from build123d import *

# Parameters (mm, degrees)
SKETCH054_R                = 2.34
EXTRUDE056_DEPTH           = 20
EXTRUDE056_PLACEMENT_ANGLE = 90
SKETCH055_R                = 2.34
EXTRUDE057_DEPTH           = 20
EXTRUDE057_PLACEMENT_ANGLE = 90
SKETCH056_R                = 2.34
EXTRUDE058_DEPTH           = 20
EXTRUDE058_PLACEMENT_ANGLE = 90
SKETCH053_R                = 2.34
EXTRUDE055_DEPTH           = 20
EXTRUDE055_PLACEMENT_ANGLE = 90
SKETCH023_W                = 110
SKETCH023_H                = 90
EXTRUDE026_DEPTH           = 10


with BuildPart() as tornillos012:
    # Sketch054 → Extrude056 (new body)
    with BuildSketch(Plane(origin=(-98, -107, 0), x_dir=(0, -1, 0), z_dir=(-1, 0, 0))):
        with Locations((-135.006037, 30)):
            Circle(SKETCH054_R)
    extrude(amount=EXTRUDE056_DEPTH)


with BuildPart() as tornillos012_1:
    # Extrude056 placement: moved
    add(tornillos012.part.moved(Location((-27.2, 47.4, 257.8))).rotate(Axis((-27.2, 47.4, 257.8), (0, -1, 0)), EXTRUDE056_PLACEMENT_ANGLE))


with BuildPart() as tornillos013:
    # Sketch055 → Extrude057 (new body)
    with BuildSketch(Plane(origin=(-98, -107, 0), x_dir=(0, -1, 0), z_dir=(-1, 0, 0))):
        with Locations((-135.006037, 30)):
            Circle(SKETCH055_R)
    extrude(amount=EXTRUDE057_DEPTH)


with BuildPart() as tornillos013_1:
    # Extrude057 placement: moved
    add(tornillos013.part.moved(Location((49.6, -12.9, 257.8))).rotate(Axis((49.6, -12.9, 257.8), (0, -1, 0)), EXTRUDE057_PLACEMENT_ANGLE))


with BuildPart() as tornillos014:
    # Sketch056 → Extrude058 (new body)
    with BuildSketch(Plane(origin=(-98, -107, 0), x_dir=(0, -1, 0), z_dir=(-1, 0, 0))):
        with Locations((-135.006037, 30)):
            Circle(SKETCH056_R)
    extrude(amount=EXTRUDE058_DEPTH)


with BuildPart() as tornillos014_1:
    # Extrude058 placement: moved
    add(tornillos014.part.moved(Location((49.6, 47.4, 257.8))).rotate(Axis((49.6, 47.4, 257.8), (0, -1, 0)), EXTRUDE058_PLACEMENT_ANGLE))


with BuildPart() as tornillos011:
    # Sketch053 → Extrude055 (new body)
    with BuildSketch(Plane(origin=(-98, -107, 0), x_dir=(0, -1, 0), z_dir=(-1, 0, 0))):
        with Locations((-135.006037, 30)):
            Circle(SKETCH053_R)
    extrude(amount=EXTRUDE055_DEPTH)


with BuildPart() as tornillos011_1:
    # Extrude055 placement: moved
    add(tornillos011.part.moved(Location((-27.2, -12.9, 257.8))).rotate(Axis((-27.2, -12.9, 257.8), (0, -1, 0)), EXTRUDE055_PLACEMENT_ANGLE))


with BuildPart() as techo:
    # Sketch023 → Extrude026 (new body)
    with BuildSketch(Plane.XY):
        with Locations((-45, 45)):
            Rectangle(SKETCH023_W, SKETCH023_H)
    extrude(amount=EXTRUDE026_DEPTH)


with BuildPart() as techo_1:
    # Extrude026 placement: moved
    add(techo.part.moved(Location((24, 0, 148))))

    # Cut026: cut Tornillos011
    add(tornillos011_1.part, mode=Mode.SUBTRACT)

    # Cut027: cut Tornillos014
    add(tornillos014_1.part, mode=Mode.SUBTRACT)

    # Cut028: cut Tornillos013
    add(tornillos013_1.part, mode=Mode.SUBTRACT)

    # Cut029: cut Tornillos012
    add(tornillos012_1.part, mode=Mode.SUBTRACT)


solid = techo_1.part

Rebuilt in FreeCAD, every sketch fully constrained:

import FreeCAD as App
import Part
import Sketcher


def add_polygon(sketch, points):
    """Adds a closed chain of lines whose ends are joined by coincident constraints."""
    first, n = sketch.GeometryCount, len(points)
    for a, b in zip(points, points[1:] + points[:1]):
        sketch.addGeometry(Part.LineSegment(App.Vector(*a, 0), App.Vector(*b, 0)), False)
    for i in range(n):
        sketch.addConstraint(Sketcher.Constraint("Coincident", first + i, 2, first + (i + 1) % n, 1))

doc = App.newDocument("Part")
body = doc.addObject("PartDesign::Body", "Body")

# Sketch on YZ plane
sketch1 = body.newObject("Sketcher::SketchObject", "Sketch")
sketch1.AttachmentSupport = (doc.getObject("YZ_Plane"), [""])
sketch1.MapMode = "FlatFace"
sketch1.AttachmentOffset = App.Placement(App.Vector(0, 0, -98), App.Rotation())
sketch1.addGeometry(Part.Circle(App.Vector(28, 30, 0), App.Vector(0, 0, 1), 2.3), False)
sketch1.addConstraint([
    Sketcher.Constraint("Diameter", 0, 4.68),
    Sketcher.Constraint("DistanceY", -1, 1, 0, 3, 30.0),
    Sketcher.Constraint("DistanceX", -1, 1, 0, 3, 28.006037),
])
pad1 = body.newObject("PartDesign::Pad", "Pad")
pad1.Profile = sketch1
pad1.Length = 20
pad1.Reversed = True
body2 = doc.addObject("PartDesign::Body", "Body001")
doc.recompute()

body.Placement = App.Placement(App.Vector(-27.2, 47.4, 257.8), App.Rotation(App.Vector(0, -1, 0), 90))
boolean = body2.newObject("PartDesign::Boolean", "Boolean")
boolean.Type = "Fuse"
boolean.addObjects([body])
body3 = doc.addObject("PartDesign::Body", "Body002")

# Sketch on YZ plane
sketch2 = body3.newObject("Sketcher::SketchObject", "Sketch001")
sketch2.AttachmentSupport = (doc.getObject("YZ_Plane002"), [""])
sketch2.MapMode = "FlatFace"
sketch2.AttachmentOffset = App.Placement(App.Vector(0, 0, -98), App.Rotation())
sketch2.addGeometry(Part.Circle(App.Vector(28, 30, 0), App.Vector(0, 0, 1), 2.3), False)
sketch2.addConstraint([
    Sketcher.Constraint("Diameter", 0, 4.68),
    Sketcher.Constraint("DistanceY", -1, 1, 0, 3, 30.0),
    Sketcher.Constraint("DistanceX", -1, 1, 0, 3, 28.006037),
])
pad2 = body3.newObject("PartDesign::Pad", "Pad001")
pad2.Profile = sketch2
pad2.Length = 20
pad2.Reversed = True
body4 = doc.addObject("PartDesign::Body", "Body003")
doc.recompute()

body3.Placement = App.Placement(App.Vector(49.6, -12.9, 257.8), App.Rotation(App.Vector(0, -1, 0), 90))
boolean2 = body4.newObject("PartDesign::Boolean", "Boolean001")
boolean2.Type = "Fuse"
boolean2.addObjects([body3])
body5 = doc.addObject("PartDesign::Body", "Body004")

# Sketch on YZ plane
sketch3 = body5.newObject("Sketcher::SketchObject", "Sketch002")
sketch3.AttachmentSupport = (doc.getObject("YZ_Plane004"), [""])
sketch3.MapMode = "FlatFace"
sketch3.AttachmentOffset = App.Placement(App.Vector(0, 0, -98), App.Rotation())
sketch3.addGeometry(Part.Circle(App.Vector(28, 30, 0), App.Vector(0, 0, 1), 2.3), False)
sketch3.addConstraint([
    Sketcher.Constraint("Diameter", 0, 4.68),
    Sketcher.Constraint("DistanceY", -1, 1, 0, 3, 30.0),
    Sketcher.Constraint("DistanceX", -1, 1, 0, 3, 28.006037),
])
pad3 = body5.newObject("PartDesign::Pad", "Pad002")
pad3.Profile = sketch3
pad3.Length = 20
pad3.Reversed = True
body6 = doc.addObject("PartDesign::Body", "Body005")
doc.recompute()

body5.Placement = App.Placement(App.Vector(49.6, 47.4, 257.8), App.Rotation(App.Vector(0, -1, 0), 90))
boolean3 = body6.newObject("PartDesign::Boolean", "Boolean002")
boolean3.Type = "Fuse"
boolean3.addObjects([body5])
body7 = doc.addObject("PartDesign::Body", "Body006")

# Sketch on YZ plane
sketch4 = body7.newObject("Sketcher::SketchObject", "Sketch003")
sketch4.AttachmentSupport = (doc.getObject("YZ_Plane006"), [""])
sketch4.MapMode = "FlatFace"
sketch4.AttachmentOffset = App.Placement(App.Vector(0, 0, -98), App.Rotation())
sketch4.addGeometry(Part.Circle(App.Vector(28, 30, 0), App.Vector(0, 0, 1), 2.3), False)
sketch4.addConstraint([
    Sketcher.Constraint("Diameter", 0, 4.68),
    Sketcher.Constraint("DistanceY", -1, 1, 0, 3, 30.0),
    Sketcher.Constraint("DistanceX", -1, 1, 0, 3, 28.006037),
])
pad4 = body7.newObject("PartDesign::Pad", "Pad003")
pad4.Profile = sketch4
pad4.Length = 20
pad4.Reversed = True
body8 = doc.addObject("PartDesign::Body", "Body007")
doc.recompute()

body7.Placement = App.Placement(App.Vector(-27.2, -12.9, 257.8), App.Rotation(App.Vector(0, -1, 0), 90))
boolean4 = body8.newObject("PartDesign::Boolean", "Boolean003")
boolean4.Type = "Fuse"
boolean4.addObjects([body7])
body9 = doc.addObject("PartDesign::Body", "Body008")

# Sketch on XY plane
sketch5 = body9.newObject("Sketcher::SketchObject", "Sketch004")
sketch5.AttachmentSupport = (doc.getObject("XY_Plane008"), [""])
sketch5.MapMode = "FlatFace"
add_polygon(sketch5, [(-100, 90), (-100, 0), (10, 0), (10, 90)])  # lines 0-3
sketch5.addConstraint([
    Sketcher.Constraint("Vertical", 0),
    Sketcher.Constraint("Horizontal", 1),
    Sketcher.Constraint("Vertical", 2),
    Sketcher.Constraint("Horizontal", 3),
    Sketcher.Constraint("PointOnObject", 0, 2, -1),
    Sketcher.Constraint("DistanceX", 1, 1, 1, 2, 110.0),
    Sketcher.Constraint("DistanceY", 0, 2, 0, 1, 90.0),
    Sketcher.Constraint("DistanceX", 0, 2, -1, 1, 100.0),
])
pad5 = body9.newObject("PartDesign::Pad", "Pad004")
pad5.Profile = sketch5
pad5.Length = 10
body10 = doc.addObject("PartDesign::Body", "Body009")
doc.recompute()

body9.Placement = App.Placement(App.Vector(24, 0, 148), App.Rotation(App.Vector(0, 0, 1), 0))
boolean5 = body10.newObject("PartDesign::Boolean", "Boolean004")
boolean5.Type = "Fuse"
boolean5.addObjects([body9])
doc.recompute()

boolean6 = body10.newObject("PartDesign::Boolean", "Boolean005")
boolean6.Type = "Cut"
boolean6.addObjects([body8])
doc.recompute()

boolean7 = body10.newObject("PartDesign::Boolean", "Boolean006")
boolean7.Type = "Cut"
boolean7.addObjects([body6])
doc.recompute()

boolean8 = body10.newObject("PartDesign::Boolean", "Boolean007")
boolean8.Type = "Cut"
boolean8.addObjects([body4])
doc.recompute()

boolean9 = body10.newObject("PartDesign::Boolean", "Boolean008")
boolean9.Type = "Cut"
boolean9.addObjects([body2])

doc.recompute()
